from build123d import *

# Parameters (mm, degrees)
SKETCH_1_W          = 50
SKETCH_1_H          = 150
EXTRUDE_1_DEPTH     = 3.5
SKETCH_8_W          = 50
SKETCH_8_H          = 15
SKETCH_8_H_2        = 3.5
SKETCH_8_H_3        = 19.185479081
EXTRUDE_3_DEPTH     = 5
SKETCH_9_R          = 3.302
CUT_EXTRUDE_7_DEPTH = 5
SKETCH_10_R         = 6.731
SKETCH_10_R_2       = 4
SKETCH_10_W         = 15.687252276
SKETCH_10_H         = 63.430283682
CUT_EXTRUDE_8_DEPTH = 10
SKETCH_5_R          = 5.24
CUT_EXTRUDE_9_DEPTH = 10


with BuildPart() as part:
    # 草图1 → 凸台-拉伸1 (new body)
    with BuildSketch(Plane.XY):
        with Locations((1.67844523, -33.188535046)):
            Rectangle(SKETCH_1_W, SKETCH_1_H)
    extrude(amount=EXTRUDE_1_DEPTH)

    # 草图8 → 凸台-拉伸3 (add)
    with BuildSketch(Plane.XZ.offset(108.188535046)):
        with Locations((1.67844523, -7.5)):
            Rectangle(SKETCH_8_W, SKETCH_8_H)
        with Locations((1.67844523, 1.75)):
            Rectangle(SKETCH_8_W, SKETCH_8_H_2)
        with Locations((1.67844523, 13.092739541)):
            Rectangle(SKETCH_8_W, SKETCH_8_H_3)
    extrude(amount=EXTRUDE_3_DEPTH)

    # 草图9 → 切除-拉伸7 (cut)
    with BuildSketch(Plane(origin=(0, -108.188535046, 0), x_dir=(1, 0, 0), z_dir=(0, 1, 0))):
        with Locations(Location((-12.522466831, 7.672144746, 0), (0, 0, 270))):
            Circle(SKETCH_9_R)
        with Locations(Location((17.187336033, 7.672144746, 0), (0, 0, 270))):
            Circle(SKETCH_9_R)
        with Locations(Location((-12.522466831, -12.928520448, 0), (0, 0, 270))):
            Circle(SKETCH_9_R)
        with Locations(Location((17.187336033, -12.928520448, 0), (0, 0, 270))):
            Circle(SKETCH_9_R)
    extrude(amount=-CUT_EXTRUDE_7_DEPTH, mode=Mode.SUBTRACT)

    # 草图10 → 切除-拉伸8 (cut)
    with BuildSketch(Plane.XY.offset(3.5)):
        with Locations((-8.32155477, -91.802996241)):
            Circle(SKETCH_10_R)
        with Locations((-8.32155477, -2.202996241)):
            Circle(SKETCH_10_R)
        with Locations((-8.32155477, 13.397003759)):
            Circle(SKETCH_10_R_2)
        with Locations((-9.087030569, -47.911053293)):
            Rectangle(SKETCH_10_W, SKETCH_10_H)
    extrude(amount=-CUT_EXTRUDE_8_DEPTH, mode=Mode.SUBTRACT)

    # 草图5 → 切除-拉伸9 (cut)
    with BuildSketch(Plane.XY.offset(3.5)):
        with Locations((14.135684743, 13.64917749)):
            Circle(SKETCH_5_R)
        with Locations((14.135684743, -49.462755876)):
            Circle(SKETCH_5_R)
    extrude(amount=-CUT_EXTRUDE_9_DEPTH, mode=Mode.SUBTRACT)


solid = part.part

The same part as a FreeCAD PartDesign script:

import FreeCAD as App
import Part
import Sketcher
from FreeCAD import Vector

doc = App.newDocument("Part")
body = doc.addObject("PartDesign::Body", "Body")

sketch1 = body.newObject("Sketcher::SketchObject", "Sketch")
sketch1.AttachmentSupport = (doc.getObject("XY_Plane"), [""])
sketch1.MapMode = "FlatFace"
sketch1.addGeometry(Part.LineSegment(Vector(-23, 42, 0), Vector(-23, -108, 0)), False)
sketch1.addGeometry(Part.LineSegment(Vector(-23, -108, 0), Vector(27, -108, 0)), False)
sketch1.addGeometry(Part.LineSegment(Vector(27, -108, 0), Vector(27, 42, 0)), False)
sketch1.addGeometry(Part.LineSegment(Vector(27, 42, 0), Vector(-23, 42, 0)), False)
sketch1.addConstraint(Sketcher.Constraint("Coincident", 0, 2, 1, 1))
sketch1.addConstraint(Sketcher.Constraint("Coincident", 1, 2, 2, 1))
sketch1.addConstraint(Sketcher.Constraint("Coincident", 2, 2, 3, 1))
sketch1.addConstraint(Sketcher.Constraint("Coincident", 3, 2, 0, 1))
sketch1.addConstraint(Sketcher.Constraint("Vertical", 0))
sketch1.addConstraint(Sketcher.Constraint("Horizontal", 1))
sketch1.addConstraint(Sketcher.Constraint("Vertical", 2))
sketch1.addConstraint(Sketcher.Constraint("Horizontal", 3))
sketch1.addConstraint(Sketcher.Constraint("DistanceX", 1, 1, 1, 2, 50.0))
sketch1.addConstraint(Sketcher.Constraint("DistanceY", 0, 2, 0, 1, 150.0))
sketch1.addConstraint(Sketcher.Constraint("DistanceX", 0, 2, -1, 1, 23.321555))
sketch1.addConstraint(Sketcher.Constraint("DistanceY", 0, 2, -1, 1, 108.188535))
pad1 = body.newObject("PartDesign::Pad", "Pad")
pad1.Profile = sketch1
pad1.Length = 3.5

sketch2 = body.newObject("Sketcher::SketchObject", "Sketch001")
sketch2.AttachmentSupport = (doc.getObject("XZ_Plane"), [""])
sketch2.MapMode = "FlatFace"
sketch2.AttachmentOffset = App.Placement(Vector(0, 0, 108.188535), App.Rotation())
sketch2.addGeometry(Part.LineSegment(Vector(-23, -15, 0), Vector(27, -15, 0)), False)
sketch2.addGeometry(Part.LineSegment(Vector(27, -15, 0), Vector(27, 23, 0)), False)
sketch2.addGeometry(Part.LineSegment(Vector(27, 23, 0), Vector(-23, 23, 0)), False)
sketch2.addGeometry(Part.LineSegment(Vector(-23, 23, 0), Vector(-23, -15, 0)), False)
sketch2.addConstraint(Sketcher.Constraint("Coincident", 0, 2, 1, 1))
sketch2.addConstraint(Sketcher.Constraint("Coincident", 1, 2, 2, 1))
sketch2.addConstraint(Sketcher.Constraint("Coincident", 2, 2, 3, 1))
sketch2.addConstraint(Sketcher.Constraint("Coincident", 3, 2, 0, 1))
sketch2.addConstraint(Sketcher.Constraint("Horizontal", 0))
sketch2.addConstraint(Sketcher.Constraint("Vertical", 1))
sketch2.addConstraint(Sketcher.Constraint("Horizontal", 2))
sketch2.addConstraint(Sketcher.Constraint("Vertical", 3))
sketch2.addConstraint(Sketcher.Constraint("DistanceX", 0, 1, 0, 2, 50.0))
sketch2.addConstraint(Sketcher.Constraint("DistanceY", 0, 2, -1, 1, 15.0))
sketch2.addConstraint(Sketcher.Constraint("DistanceY", 1, 1, 1, 2, 37.685479))
sketch2.addConstraint(Sketcher.Constraint("DistanceX", -1, 1, 0, 2, 26.678445))
pad2 = body.newObject("PartDesign::Pad", "Pad001")
pad2.Profile = sketch2
pad2.Length = 5

sketch3 = body.newObject("Sketcher::SketchObject", "Sketch002")
sketch3.AttachmentSupport = (doc.getObject("XZ_Plane"), [""])
sketch3.MapMode = "FlatFace"
sketch3.AttachmentOffset = App.Placement(Vector(0, 0, 108.188535), App.Rotation())
sketch3.addGeometry(Part.Circle(Vector(-12.5, -7.7, 0), Vector(0, 0, 1), 3.3), False)
sketch3.addGeometry(Part.Circle(Vector(17.2, -7.7, 0), Vector(0, 0, 1), 3.3), False)
sketch3.addGeometry(Part.Circle(Vector(-12.5, 12.9, 0), Vector(0, 0, 1), 3.3), False)
sketch3.addGeometry(Part.Circle(Vector(17.2, 12.9, 0), Vector(0, 0, 1), 3.3), False)
sketch3.addConstraint(Sketcher.Constraint("Equal", 0, 1))
sketch3.addConstraint(Sketcher.Constraint("Equal", 1, 2))
sketch3.addConstraint(Sketcher.Constraint("Equal", 2, 3))
sketch3.addConstraint(Sketcher.Constraint("Horizontal", 0, 3, 1, 3))
sketch3.addConstraint(Sketcher.Constraint("Horizontal", 2, 3, 3, 3))
sketch3.addConstraint(Sketcher.Constraint("Vertical", 0, 3, 2, 3))
sketch3.addConstraint(Sketcher.Constraint("Vertical", 1, 3, 3, 3))
sketch3.addConstraint(Sketcher.Constraint("Diameter", 0, 6.604))
sketch3.addConstraint(Sketcher.Constraint("DistanceY", -1, 1, 2, 3, 12.92852))
sketch3.addConstraint(Sketcher.Constraint("DistanceX", 0, 3, -1, 1, 12.522467))
sketch3.addConstraint(Sketcher.Constraint("DistanceY", 0, 3, -1, 1, 7.672145))
sketch3.addConstraint(Sketcher.Constraint("DistanceX", -1, 1, 1, 3, 17.187336))
pocket1 = body.newObject("PartDesign::Pocket", "Pocket")
pocket1.Profile = sketch3
pocket1.Length = 5
pocket1.Reversed = True

sketch4 = body.newObject("Sketcher::SketchObject", "Sketch003")
sketch4.AttachmentSupport = (doc.getObject("XY_Plane"), [""])
sketch4.MapMode = "FlatFace"
sketch4.AttachmentOffset = App.Placement(Vector(0, 0, 3.5), App.Rotation())
sketch4.addGeometry(Part.Circle(Vector(-8.3, -91.8, 0), Vector(0, 0, 1), 6.7), False)
sketch4.addGeometry(Part.Circle(Vector(-8.3, -2.2, 0), Vector(0, 0, 1), 6.7), False)
sketch4.addGeometry(Part.Circle(Vector(-8.3, 13.4, 0), Vector(0, 0, 1), 4), False)
sketch4.addGeometry(Part.LineSegment(Vector(-16.9, -16.2, 0), Vector(-16.9, -79.6, 0)), False)
sketch4.addGeometry(Part.LineSegment(Vector(-16.9, -79.6, 0), Vector(-1.2, -79.6, 0)), False)
sketch4.addGeometry(Part.LineSegment(Vector(-1.2, -79.6, 0), Vector(-1.2, -16.2, 0)), False)
sketch4.addGeometry(Part.LineSegment(Vector(-1.2, -16.2, 0), Vector(-16.9, -16.2, 0)), False)
sketch4.addConstraint(Sketcher.Constraint("Coincident", 3, 2, 4, 1))
sketch4.addConstraint(Sketcher.Constraint("Coincident", 4, 2, 5, 1))
sketch4.addConstraint(Sketcher.Constraint("Coincident", 5, 2, 6, 1))
sketch4.addConstraint(Sketcher.Constraint("Coincident", 6, 2, 3, 1))
sketch4.addConstraint(Sketcher.Constraint("Vertical", 3))
sketch4.addConstraint(Sketcher.Constraint("Horizontal", 4))
sketch4.addConstraint(Sketcher.Constraint("Vertical", 5))
sketch4.addConstraint(Sketcher.Constraint("Horizontal", 6))
sketch4.addConstraint(Sketcher.Constraint("Equal", 0, 1))
sketch4.addConstraint(Sketcher.Constraint("Vertical", 0, 3, 1, 3))
sketch4.addConstraint(Sketcher.Constraint("Vertical", 1, 3, 2, 3))
sketch4.addConstraint(Sketcher.Constraint("Diameter", 2, 8.0))
sketch4.addConstraint(Sketcher.Constraint("Diameter", 0, 13.462))
sketch4.addConstraint(Sketcher.Constraint("DistanceY", 0, 3, 1, 3, 89.6))
sketch4.addConstraint(Sketcher.Constraint("DistanceY", 1, 3, 2, 3, 15.6))
sketch4.addConstraint(Sketcher.Constraint("DistanceX", 3, 2, 0, 3, 8.609102))
sketch4.addConstraint(Sketcher.Constraint("DistanceY", 0, 3, 3, 2, 12.176801))
sketch4.addConstraint(Sketcher.Constraint("DistanceX", 4, 1, 4, 2, 15.687252))
sketch4.addConstraint(Sketcher.Constraint("DistanceY", 3, 2, 3, 1, 63.430284))
sketch4.addConstraint(Sketcher.Constraint("DistanceY", 5, 2, -1, 1, 16.195911))
sketch4.addConstraint(Sketcher.Constraint("DistanceX", 0, 3, -1, 1, 8.321555))
pocket2 = body.newObject("PartDesign::Pocket", "Pocket001")
pocket2.Profile = sketch4
pocket2.Length = 10

sketch5 = body.newObject("Sketcher::SketchObject", "Sketch004")
sketch5.AttachmentSupport = (doc.getObject("XY_Plane"), [""])
sketch5.MapMode = "FlatFace"
sketch5.AttachmentOffset = App.Placement(Vector(0, 0, 3.5), App.Rotation())
sketch5.addGeometry(Part.Circle(Vector(14, 14, 0), Vector(0, 0, 1), 5), False)
sketch5.addGeometry(Part.Circle(Vector(14, -49, 0), Vector(0, 0, 1), 5), False)
sketch5.addConstraint(Sketcher.Constraint("Equal", 0, 1))
sketch5.addConstraint(Sketcher.Constraint("Vertical", 0, 3, 1, 3))
sketch5.addConstraint(Sketcher.Constraint("Diameter", 0, 10.48))
sketch5.addConstraint(Sketcher.Constraint("DistanceX", -1, 1, 0, 3, 14.135685))
sketch5.addConstraint(Sketcher.Constraint("DistanceY", -1, 1, 0, 3, 13.649177))
sketch5.addConstraint(Sketcher.Constraint("DistanceY", 1, 3, -1, 1, 49.462756))
pocket3 = body.newObject("PartDesign::Pocket", "Pocket002")
pocket3.Profile = sketch5
pocket3.Length = 10

doc.recompute()
